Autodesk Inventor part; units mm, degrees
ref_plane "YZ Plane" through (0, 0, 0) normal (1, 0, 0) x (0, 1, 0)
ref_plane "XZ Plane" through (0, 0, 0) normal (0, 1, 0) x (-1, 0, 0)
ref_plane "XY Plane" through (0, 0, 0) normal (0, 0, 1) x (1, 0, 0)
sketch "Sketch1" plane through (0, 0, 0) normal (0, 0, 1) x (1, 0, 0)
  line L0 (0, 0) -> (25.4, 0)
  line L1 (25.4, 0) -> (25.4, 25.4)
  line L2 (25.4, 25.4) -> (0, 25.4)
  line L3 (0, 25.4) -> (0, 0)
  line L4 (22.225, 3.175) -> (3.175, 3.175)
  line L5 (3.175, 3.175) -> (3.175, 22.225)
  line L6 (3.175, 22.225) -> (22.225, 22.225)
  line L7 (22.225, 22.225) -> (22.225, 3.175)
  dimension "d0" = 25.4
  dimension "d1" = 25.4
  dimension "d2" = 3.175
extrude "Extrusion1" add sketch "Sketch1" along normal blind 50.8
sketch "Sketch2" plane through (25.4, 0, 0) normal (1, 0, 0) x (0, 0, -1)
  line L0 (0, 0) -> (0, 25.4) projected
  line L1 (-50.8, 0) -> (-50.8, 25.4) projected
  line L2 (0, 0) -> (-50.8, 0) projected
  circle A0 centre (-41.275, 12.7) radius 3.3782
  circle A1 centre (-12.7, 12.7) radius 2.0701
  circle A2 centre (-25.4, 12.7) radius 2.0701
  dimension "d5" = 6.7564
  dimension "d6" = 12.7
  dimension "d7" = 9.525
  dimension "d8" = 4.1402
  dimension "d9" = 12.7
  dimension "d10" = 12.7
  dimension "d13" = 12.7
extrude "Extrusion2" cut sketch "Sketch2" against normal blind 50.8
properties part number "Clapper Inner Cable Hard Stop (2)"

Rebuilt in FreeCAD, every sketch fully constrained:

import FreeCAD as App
import Part
import Sketcher

V = App.Vector
Q = App.Units.Quantity

doc = App.newDocument("Part")
body = doc.addObject("PartDesign::Body", "Body")

# Sketch on XY plane
sketch1 = body.newObject("Sketcher::SketchObject", "Sketch")
sketch1.AttachmentSupport = (doc.getObject("XY_Plane"), [""])
sketch1.MapMode = "FlatFace"
sketch1.addGeometry([
    Part.LineSegment(V(0, 25, 0), V(0, 0, 0)),  # 0
    Part.LineSegment(V(0, 0, 0), V(25, 0, 0)),  # 1
    Part.LineSegment(V(25, 0, 0), V(25, 25, 0)),  # 2
    Part.LineSegment(V(25, 25, 0), V(0, 25, 0)),  # 3
    Part.LineSegment(V(22, 22, 0), V(22, 3, 0)),  # 4
    Part.LineSegment(V(22, 3, 0), V(3, 3, 0)),  # 5
    Part.LineSegment(V(3, 3, 0), V(3, 22, 0)),  # 6
    Part.LineSegment(V(3, 22, 0), V(22, 22, 0)),  # 7
], False)
sketch1.addConstraint([
    Sketcher.Constraint("Coincident", 0, 2, 1, 1),
    Sketcher.Constraint("Coincident", 1, 2, 2, 1),
    Sketcher.Constraint("Coincident", 2, 2, 3, 1),
    Sketcher.Constraint("Coincident", 3, 2, 0, 1),
    Sketcher.Constraint("Coincident", 4, 2, 5, 1),
    Sketcher.Constraint("Coincident", 5, 2, 6, 1),
    Sketcher.Constraint("Coincident", 6, 2, 7, 1),
    Sketcher.Constraint("Coincident", 7, 2, 4, 1),
    Sketcher.Constraint("Vertical", 0),
    Sketcher.Constraint("Horizontal", 1),
    Sketcher.Constraint("Vertical", 2),
    Sketcher.Constraint("Horizontal", 3),
    Sketcher.Constraint("Vertical", 4),
    Sketcher.Constraint("Horizontal", 5),
    Sketcher.Constraint("Vertical", 6),
    Sketcher.Constraint("Horizontal", 7),
    Sketcher.Constraint("Coincident", 0, 2, -1, 1),
    Sketcher.Constraint("Equal", 3, 0),
    Sketcher.Constraint("Equal", 7, 4),
    Sketcher.Constraint("DistanceX", 1, 1, 1, 2, Q("1 in")),
    Sketcher.Constraint("DistanceY", -1, 1, 4, 2, Q("0.125 in")),
    Sketcher.Constraint("DistanceX", -1, 1, 5, 2, Q("0.125 in")),
    Sketcher.Constraint("DistanceX", 4, 2, 1, 2, Q("0.125 in")),
])
pad1 = body.newObject("PartDesign::Pad", "Pad")
pad1.Profile = sketch1
pad1.Length = Q("2 in")

# Sketch on YZ plane
sketch2 = body.newObject("Sketcher::SketchObject", "Sketch001")
sketch2.AttachmentSupport = (doc.getObject("YZ_Plane"), [""])
sketch2.MapMode = "FlatFace"
sketch2.AttachmentOffset = App.Placement(V(0, 0, 1 * 25.4), App.Rotation())
sketch2.addGeometry([
    Part.Circle(V(12.7, 41.3, 0), V(0, 0, 1), 3.4),
    Part.Circle(V(12.7, 12.7, 0), V(0, 0, 1), 2.1),
    Part.Circle(V(12.7, 25.4, 0), V(0, 0, 1), 2.1),
], False)
sketch2.addConstraint([
    Sketcher.Constraint("Equal", 1, 2),
    Sketcher.Constraint("Vertical", 0, 3, 1, 3),
    Sketcher.Constraint("Vertical", 1, 3, 2, 3),
    Sketcher.Constraint("Diameter", 0, Q("0.266 in")),
    Sketcher.Constraint("Diameter", 1, Q("0.163 in")),
    Sketcher.Constraint("DistanceY", -1, 1, 2, 3, Q("1 in")),
    Sketcher.Constraint("DistanceX", -1, 1, 0, 3, Q("0.5 in")),
    Sketcher.Constraint("DistanceY", -1, 1, 1, 3, Q("0.5 in")),
    Sketcher.Constraint("DistanceY", -1, 1, 0, 3, Q("1.625 in")),
])
pocket1 = body.newObject("PartDesign::Pocket", "Pocket")
pocket1.Profile = sketch2
pocket1.Length = Q("2 in")

doc.recompute()
